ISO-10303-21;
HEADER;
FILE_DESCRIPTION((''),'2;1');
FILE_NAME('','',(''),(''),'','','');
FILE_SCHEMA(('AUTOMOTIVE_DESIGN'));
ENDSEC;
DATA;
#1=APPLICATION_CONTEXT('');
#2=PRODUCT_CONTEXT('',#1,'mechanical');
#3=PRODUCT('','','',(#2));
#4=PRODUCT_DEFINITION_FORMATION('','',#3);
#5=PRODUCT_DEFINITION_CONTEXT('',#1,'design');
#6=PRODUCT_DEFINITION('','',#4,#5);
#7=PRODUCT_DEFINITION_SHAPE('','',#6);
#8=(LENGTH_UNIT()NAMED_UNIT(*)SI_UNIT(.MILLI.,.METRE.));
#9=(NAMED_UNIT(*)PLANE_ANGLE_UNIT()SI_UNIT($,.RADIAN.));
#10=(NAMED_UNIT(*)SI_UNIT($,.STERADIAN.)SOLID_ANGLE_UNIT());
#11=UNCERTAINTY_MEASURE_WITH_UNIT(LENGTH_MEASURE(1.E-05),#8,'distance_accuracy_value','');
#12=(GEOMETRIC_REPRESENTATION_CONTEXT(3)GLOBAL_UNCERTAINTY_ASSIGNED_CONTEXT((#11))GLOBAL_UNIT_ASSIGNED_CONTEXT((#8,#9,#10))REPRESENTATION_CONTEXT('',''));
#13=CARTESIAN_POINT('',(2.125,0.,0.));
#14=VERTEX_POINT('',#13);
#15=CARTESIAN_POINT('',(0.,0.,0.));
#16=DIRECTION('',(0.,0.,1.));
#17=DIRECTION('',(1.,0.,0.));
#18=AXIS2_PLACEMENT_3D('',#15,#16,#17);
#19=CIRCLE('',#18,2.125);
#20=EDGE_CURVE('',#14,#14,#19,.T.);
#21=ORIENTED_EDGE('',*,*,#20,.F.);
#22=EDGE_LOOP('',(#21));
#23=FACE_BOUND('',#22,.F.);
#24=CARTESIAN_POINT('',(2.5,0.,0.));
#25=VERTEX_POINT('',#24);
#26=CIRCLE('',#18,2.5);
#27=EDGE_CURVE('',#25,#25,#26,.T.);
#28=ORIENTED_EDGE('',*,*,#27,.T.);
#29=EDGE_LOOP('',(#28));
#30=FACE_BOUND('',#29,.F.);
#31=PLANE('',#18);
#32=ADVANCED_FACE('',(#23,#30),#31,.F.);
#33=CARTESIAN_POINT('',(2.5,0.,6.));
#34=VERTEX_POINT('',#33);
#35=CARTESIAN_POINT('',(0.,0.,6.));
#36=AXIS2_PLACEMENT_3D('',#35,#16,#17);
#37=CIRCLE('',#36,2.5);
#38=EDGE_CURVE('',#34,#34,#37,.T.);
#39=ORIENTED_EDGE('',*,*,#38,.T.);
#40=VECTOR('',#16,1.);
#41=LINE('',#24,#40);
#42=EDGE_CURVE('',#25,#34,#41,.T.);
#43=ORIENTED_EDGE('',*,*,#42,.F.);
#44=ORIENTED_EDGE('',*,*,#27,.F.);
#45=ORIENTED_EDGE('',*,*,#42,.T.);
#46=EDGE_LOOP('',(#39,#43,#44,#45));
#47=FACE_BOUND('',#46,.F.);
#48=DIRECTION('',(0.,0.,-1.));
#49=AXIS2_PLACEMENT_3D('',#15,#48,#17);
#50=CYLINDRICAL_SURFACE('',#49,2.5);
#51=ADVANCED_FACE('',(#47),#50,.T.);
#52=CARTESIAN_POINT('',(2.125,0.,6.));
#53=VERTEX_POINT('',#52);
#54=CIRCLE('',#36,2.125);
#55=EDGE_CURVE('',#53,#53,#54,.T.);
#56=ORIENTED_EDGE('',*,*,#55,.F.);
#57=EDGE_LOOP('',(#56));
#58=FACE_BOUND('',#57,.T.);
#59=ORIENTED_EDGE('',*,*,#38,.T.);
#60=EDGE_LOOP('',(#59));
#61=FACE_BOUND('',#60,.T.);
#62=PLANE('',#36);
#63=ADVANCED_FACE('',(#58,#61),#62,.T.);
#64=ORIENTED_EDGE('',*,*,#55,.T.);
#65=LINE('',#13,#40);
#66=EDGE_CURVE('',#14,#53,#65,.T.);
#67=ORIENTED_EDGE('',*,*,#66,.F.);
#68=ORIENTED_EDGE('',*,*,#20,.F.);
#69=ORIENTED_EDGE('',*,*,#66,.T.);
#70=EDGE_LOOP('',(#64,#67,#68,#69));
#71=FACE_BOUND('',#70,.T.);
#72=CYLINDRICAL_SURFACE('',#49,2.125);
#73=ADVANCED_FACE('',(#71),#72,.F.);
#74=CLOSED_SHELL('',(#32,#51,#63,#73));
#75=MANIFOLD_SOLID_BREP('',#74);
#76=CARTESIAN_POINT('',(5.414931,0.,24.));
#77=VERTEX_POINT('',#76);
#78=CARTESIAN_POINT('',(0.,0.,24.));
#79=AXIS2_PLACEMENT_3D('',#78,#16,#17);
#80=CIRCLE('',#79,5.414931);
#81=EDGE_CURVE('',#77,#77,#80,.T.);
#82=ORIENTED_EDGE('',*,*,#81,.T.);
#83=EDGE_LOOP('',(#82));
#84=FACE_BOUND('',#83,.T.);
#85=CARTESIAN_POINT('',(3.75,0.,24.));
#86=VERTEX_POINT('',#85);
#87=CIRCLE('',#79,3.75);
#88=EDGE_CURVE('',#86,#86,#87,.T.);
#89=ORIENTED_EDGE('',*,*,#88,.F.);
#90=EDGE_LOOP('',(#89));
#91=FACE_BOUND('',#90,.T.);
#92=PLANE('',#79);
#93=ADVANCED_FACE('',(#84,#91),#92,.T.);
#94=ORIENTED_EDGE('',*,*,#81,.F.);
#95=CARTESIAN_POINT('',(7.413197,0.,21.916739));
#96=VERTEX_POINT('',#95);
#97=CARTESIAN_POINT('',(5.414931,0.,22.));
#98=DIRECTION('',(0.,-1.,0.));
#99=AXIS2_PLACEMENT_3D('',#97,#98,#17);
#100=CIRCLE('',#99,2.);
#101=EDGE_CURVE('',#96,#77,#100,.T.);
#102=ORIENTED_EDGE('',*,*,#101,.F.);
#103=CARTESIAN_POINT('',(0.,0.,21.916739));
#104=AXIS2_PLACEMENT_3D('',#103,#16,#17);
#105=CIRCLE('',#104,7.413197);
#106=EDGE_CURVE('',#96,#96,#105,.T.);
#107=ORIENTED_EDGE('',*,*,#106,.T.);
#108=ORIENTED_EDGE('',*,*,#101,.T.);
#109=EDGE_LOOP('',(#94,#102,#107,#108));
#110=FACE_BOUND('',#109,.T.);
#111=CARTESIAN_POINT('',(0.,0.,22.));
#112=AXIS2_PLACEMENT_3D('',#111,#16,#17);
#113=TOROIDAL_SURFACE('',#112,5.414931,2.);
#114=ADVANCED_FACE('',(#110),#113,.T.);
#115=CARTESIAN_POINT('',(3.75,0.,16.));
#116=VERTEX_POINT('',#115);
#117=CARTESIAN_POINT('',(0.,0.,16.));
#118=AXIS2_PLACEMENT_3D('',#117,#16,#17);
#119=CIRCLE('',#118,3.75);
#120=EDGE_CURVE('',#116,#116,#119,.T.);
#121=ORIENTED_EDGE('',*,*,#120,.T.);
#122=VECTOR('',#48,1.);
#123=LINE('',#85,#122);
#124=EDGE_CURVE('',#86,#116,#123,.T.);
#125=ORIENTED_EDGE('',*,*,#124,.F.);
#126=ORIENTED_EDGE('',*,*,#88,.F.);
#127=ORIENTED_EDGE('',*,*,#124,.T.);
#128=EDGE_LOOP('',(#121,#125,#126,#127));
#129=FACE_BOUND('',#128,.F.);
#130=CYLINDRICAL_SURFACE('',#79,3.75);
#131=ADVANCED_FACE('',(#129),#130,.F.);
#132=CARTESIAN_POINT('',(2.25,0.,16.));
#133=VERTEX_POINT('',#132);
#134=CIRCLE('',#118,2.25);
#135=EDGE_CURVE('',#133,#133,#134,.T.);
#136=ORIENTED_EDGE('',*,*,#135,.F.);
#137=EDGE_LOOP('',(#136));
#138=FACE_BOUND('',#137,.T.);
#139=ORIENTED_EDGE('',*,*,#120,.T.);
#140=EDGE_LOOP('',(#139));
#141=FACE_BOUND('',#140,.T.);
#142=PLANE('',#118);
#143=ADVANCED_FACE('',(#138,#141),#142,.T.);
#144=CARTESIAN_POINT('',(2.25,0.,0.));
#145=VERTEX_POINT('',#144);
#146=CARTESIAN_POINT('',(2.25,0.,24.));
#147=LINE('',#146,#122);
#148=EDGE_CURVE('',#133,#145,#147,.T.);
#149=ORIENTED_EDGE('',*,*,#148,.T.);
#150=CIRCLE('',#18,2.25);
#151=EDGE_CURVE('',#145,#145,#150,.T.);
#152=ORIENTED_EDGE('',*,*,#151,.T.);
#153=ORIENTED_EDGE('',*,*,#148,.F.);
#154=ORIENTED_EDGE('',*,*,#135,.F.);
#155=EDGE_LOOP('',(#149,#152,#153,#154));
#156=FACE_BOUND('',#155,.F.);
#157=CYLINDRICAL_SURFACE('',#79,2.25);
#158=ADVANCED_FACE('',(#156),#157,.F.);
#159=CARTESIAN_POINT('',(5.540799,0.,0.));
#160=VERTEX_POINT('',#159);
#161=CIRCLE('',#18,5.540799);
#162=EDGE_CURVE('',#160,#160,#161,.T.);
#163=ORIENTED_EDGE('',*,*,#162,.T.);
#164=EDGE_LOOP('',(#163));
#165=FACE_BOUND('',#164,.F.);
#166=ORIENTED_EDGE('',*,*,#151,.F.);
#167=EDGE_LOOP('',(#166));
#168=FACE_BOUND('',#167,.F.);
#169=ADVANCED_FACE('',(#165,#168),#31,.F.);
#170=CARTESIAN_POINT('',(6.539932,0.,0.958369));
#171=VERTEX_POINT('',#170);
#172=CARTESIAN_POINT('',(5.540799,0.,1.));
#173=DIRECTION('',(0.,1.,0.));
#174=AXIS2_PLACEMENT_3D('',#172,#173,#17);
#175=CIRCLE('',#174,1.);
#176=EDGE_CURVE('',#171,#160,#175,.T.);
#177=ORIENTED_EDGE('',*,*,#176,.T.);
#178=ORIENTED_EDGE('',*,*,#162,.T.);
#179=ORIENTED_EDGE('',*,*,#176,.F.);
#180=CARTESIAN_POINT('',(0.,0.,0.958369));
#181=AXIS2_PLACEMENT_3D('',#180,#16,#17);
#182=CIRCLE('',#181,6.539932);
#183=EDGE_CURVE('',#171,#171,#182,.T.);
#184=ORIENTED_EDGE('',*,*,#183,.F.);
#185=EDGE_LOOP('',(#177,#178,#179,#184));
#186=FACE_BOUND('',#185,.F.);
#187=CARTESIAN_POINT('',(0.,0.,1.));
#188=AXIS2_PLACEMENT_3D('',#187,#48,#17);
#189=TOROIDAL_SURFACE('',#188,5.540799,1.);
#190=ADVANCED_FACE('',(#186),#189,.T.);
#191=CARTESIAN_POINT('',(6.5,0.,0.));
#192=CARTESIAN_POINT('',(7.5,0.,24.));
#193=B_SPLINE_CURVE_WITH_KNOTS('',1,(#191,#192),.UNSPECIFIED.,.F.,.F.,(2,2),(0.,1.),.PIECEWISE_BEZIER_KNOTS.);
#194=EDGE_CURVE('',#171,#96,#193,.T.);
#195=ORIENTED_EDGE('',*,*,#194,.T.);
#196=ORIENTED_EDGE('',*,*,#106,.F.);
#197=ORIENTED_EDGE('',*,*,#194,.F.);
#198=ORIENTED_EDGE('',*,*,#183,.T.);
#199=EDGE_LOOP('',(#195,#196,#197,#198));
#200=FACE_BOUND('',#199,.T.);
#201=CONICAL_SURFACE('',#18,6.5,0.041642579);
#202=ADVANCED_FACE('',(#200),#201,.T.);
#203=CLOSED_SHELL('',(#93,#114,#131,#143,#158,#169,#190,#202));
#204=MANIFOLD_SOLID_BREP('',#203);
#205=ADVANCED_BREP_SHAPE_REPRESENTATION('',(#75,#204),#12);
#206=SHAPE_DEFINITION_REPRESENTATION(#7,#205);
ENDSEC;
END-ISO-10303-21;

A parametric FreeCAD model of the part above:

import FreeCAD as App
import Part
import Sketcher


def edges_at(feature, points):
    """Names of the edges that pass closest to the given points."""
    edges = feature.Shape.Edges
    near = lambda p: min(range(len(edges)), key=lambda i: edges[i].distToShape(Part.Vertex(*p))[0])
    return sorted({f"Edge{near(p) + 1}" for p in points})

doc = App.newDocument("Part")
body = doc.addObject("PartDesign::Body", "Body")

# Sketch on XY plane
sketch1 = body.newObject("Sketcher::SketchObject", "Sketch")
sketch1.AttachmentSupport = (doc.getObject("XY_Plane"), [""])
sketch1.MapMode = "FlatFace"
sketch1.addGeometry(Part.Circle(App.Vector(0, 0, 0), App.Vector(0, 0, 1), 6), False)
sketch1.addConstraint([
    Sketcher.Constraint("Coincident", 0, 3, -1, 1),
    Sketcher.Constraint("Diameter", 0, 13.0),
])

# Sketch on XY plane
sketch2 = body.newObject("Sketcher::SketchObject", "Sketch001")
sketch2.AttachmentSupport = (doc.getObject("XY_Plane"), [""])
sketch2.MapMode = "FlatFace"
sketch2.AttachmentOffset = App.Placement(App.Vector(0, 0, 24), App.Rotation())
sketch2.addGeometry(Part.Circle(App.Vector(0, 0, 0), App.Vector(0, 0, 1), 8), False)
sketch2.addConstraint([
    Sketcher.Constraint("Coincident", 0, 3, -1, 1),
    Sketcher.Constraint("Diameter", 0, 15.0),
])

additiveloft = body.newObject("PartDesign::AdditiveLoft", "AdditiveLoft")
additiveloft.Profile = sketch1
additiveloft.Sections = [sketch2]

# Sketch on XY plane
sketch3 = body.newObject("Sketcher::SketchObject", "Sketch002")
sketch3.AttachmentSupport = (doc.getObject("XY_Plane"), [""])
sketch3.MapMode = "FlatFace"
sketch3.AttachmentOffset = App.Placement(App.Vector(0, 0, 24), App.Rotation())
sketch3.addGeometry(Part.Circle(App.Vector(0, 0, 0), App.Vector(0, 0, 1), 2.2), False)
sketch3.addConstraint([
    Sketcher.Constraint("Coincident", 0, 3, -1, 1),
    Sketcher.Constraint("Diameter", 0, 4.5),
])
pocket1 = body.newObject("PartDesign::Pocket", "Pocket")
pocket1.Profile = sketch3
pocket1.Type = "ThroughAll"

# Sketch on XY plane
sketch4 = body.newObject("Sketcher::SketchObject", "Sketch003")
sketch4.AttachmentSupport = (doc.getObject("XY_Plane"), [""])
sketch4.MapMode = "FlatFace"
sketch4.AttachmentOffset = App.Placement(App.Vector(0, 0, 24), App.Rotation())
sketch4.addGeometry(Part.Circle(App.Vector(0, 0, 0), App.Vector(0, 0, 1), 3.8), False)
sketch4.addConstraint([
    Sketcher.Constraint("Coincident", 0, 3, -1, 1),
    Sketcher.Constraint("Diameter", 0, 7.5),
])
pocket2 = body.newObject("PartDesign::Pocket", "Pocket001")
pocket2.Profile = sketch4
pocket2.Length = 8
doc.recompute()

fillet = body.newObject("PartDesign::Fillet", "Fillet")
fillet.Base = (pocket2, edges_at(pocket2, [(-7.5, 0, 24)]))
fillet.Radius = 2
doc.recompute()

fillet2 = body.newObject("PartDesign::Fillet", "Fillet001")
fillet2.Base = (fillet, edges_at(fillet, [(-6.5, 0, 0)]))
fillet2.Radius = 1
body2 = doc.addObject("PartDesign::Body", "Body001")

# Sketch on XY plane
sketch5 = body2.newObject("Sketcher::SketchObject", "Sketch004")
sketch5.AttachmentSupport = (doc.getObject("XY_Plane001"), [""])
sketch5.MapMode = "FlatFace"
sketch5.addGeometry([
    Part.Circle(App.Vector(0, 0, 0), App.Vector(0, 0, 1), 2.5),
    Part.Circle(App.Vector(0, 0, 0), App.Vector(0, 0, 1), 2.1),
], False)
sketch5.addConstraint([
    Sketcher.Constraint("Coincident", 0, 3, -1, 1),
    Sketcher.Constraint("Coincident", 1, 3, -1, 1),
    Sketcher.Constraint("Diameter", 0, 5.0),
    Sketcher.Constraint("Diameter", 1, 4.25),
])
pad1 = body2.newObject("PartDesign::Pad", "Pad")
pad1.Profile = sketch5
pad1.Length = 6

doc.recompute()
